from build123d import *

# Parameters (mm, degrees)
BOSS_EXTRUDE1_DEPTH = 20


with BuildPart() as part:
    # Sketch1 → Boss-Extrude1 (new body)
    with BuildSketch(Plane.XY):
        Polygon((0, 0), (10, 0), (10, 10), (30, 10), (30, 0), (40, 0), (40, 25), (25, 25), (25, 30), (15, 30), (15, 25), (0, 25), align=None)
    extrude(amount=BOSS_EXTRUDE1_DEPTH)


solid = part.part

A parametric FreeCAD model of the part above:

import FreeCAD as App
import Part
import Sketcher

V = App.Vector
Q = App.Units.Quantity


def add_polygon(sketch, points):
    """Adds a closed chain of lines whose ends are joined by coincident constraints."""
    first, n = sketch.GeometryCount, len(points)
    for a, b in zip(points, points[1:] + points[:1]):
        sketch.addGeometry(Part.LineSegment(App.Vector(*a, 0), App.Vector(*b, 0)), False)
    for i in range(n):
        sketch.addConstraint(Sketcher.Constraint("Coincident", first + i, 2, first + (i + 1) % n, 1))

doc = App.newDocument("Part")
body = doc.addObject("PartDesign::Body", "Body")

sketch1 = body.newObject("Sketcher::SketchObject", "Sketch")
sketch1.AttachmentSupport = (doc.getObject("XY_Plane"), [""])
sketch1.MapMode = "FlatFace"
add_polygon(sketch1, [(0, 0), (10, 0), (10, 10), (30, 10), (30, 0), (40, 0), (40, 25), (25, 25), (25, 30), (15, 30), (15, 25), (0, 25)])
sketch1.addConstraint([
    Sketcher.Constraint("Horizontal", 0),
    Sketcher.Constraint("Vertical", 1),
    Sketcher.Constraint("Horizontal", 2),
    Sketcher.Constraint("Vertical", 3),
    Sketcher.Constraint("Horizontal", 4),
    Sketcher.Constraint("Vertical", 5),
    Sketcher.Constraint("Horizontal", 6),
    Sketcher.Constraint("Vertical", 7),
    Sketcher.Constraint("Horizontal", 8),
    Sketcher.Constraint("Vertical", 9),
    Sketcher.Constraint("Horizontal", 10),
    Sketcher.Constraint("Vertical", 11),
    Sketcher.Constraint("Coincident", 11, 2, -1, 1),
    Sketcher.Constraint("PointOnObject", 3, 2, -1),
    Sketcher.Constraint("Horizontal", 6, 2, 9, 2),
    Sketcher.Constraint("Equal", 0, 4),
    Sketcher.Constraint("Equal", 4, 8),
    Sketcher.Constraint("Equal", 6, 10),
    Sketcher.Constraint("Equal", 8, 1),
    Sketcher.Constraint("DistanceX", 0, 1, 0, 2, Q("10 mm")),
    Sketcher.Constraint("DistanceX", 2, 1, 2, 2, Q("20 mm")),
    Sketcher.Constraint("DistanceY", 5, 1, 5, 2, Q("25 mm")),
    Sketcher.Constraint("DistanceY", 7, 1, 7, 2, Q("5 mm")),
])
pad1 = body.newObject("PartDesign::Pad", "Pad")
pad1.Profile = sketch1
pad1.Length = 20

doc.recompute()
